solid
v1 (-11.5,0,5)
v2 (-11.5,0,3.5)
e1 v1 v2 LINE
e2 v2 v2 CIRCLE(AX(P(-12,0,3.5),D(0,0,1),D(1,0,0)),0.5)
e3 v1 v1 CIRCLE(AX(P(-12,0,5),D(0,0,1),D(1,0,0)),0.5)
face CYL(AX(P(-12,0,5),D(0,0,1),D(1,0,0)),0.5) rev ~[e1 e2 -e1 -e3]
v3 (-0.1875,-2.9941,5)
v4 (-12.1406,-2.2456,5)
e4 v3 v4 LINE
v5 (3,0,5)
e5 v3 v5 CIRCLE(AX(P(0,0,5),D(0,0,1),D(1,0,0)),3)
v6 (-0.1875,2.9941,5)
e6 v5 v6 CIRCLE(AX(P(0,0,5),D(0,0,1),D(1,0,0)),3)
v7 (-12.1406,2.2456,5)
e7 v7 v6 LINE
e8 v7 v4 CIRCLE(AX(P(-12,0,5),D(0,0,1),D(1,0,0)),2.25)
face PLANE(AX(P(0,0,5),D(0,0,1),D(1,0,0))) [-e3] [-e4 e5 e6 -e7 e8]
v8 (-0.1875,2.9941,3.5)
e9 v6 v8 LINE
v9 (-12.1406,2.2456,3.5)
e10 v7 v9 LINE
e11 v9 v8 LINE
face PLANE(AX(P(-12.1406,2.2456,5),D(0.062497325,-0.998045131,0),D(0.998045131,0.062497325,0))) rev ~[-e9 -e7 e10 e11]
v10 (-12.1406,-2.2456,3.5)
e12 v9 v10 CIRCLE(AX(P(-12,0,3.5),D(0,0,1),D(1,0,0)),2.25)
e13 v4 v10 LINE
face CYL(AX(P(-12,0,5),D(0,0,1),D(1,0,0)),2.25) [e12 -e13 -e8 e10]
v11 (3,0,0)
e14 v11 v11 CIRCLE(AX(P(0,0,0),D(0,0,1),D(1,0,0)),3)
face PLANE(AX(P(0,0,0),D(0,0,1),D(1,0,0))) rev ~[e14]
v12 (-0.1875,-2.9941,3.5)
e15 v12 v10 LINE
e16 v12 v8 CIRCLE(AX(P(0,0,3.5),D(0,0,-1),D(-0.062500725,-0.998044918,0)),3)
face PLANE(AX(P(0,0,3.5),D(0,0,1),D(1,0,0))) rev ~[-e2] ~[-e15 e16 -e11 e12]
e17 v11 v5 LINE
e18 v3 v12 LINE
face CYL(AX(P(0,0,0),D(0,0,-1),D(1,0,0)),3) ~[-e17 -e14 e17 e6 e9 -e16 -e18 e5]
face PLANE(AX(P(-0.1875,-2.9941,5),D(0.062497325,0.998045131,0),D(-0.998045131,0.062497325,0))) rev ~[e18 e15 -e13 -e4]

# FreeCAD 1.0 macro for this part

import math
import FreeCAD as App
import Part
import Sketcher

V = App.Vector
Q = App.Units.Quantity

doc = App.newDocument("Part")
body = doc.addObject("PartDesign::Body", "Body")

sketch1 = body.newObject("Sketcher::SketchObject", "Sketch")
sketch1.AttachmentSupport = (doc.getObject("XY_Plane"), [""])
sketch1.MapMode = "FlatFace"
sketch1.addGeometry(Part.Circle(V(0, 0, 0), V(0, 0, 1), 3), False)
sketch1.addConstraint([
    Sketcher.Constraint("Coincident", 0, 3, -1, 1),
    Sketcher.Constraint("Diameter", 0, Q("6 mm")),
])
pad1 = body.newObject("PartDesign::Pad", "Pad")
pad1.Profile = sketch1
pad1.Length = 5

sketch2 = body.newObject("Sketcher::SketchObject", "Sketch001")
sketch2.AttachmentSupport = (doc.getObject("XY_Plane"), [""])
sketch2.MapMode = "FlatFace"
sketch2.AttachmentOffset = App.Placement(V(0, 0, 5), App.Rotation())
sketch2.addGeometry([
    Part.LineSegment(V(-0.1875, 2.9941, 0), V(-12.1406, 2.2456, 0)),
    Part.ArcOfCircle(Part.Circle(V(-12, 0, 0), V(0, 0, 1), 2.25), math.radians(93.582688), math.radians(266.417312)),
    Part.LineSegment(V(-12.1406, -2.2456, 0), V(-0.1875, -2.9941, 0)),
    Part.ArcOfCircle(Part.Circle(V(0, 0, 0), V(0, 0, 1), 3), math.radians(93.583363), math.radians(266.416637)),
    Part.Circle(V(-12, 0, 0), V(0, 0, 1), 0.5),
], False)
sketch2.addConstraint([
    Sketcher.Constraint("Tangent", 0, 2, 1, 1),
    Sketcher.Constraint("Tangent", 1, 2, 2, 1),
    Sketcher.Constraint("Tangent", 2, 2, 3, 2),
    Sketcher.Constraint("Tangent", 3, 1, 0, 1),
    Sketcher.Constraint("Coincident", 3, 3, -1, 1),
    Sketcher.Constraint("Coincident", 4, 3, 1, 3),
    Sketcher.Constraint("PointOnObject", 1, 3, -1),
    Sketcher.Constraint("Diameter", 4, Q("1 mm")),
    Sketcher.Constraint("Radius", 1, Q("2.25 mm")),
    Sketcher.Constraint("DistanceX", 1, 3, -1, 1, Q("12 mm")),
    Sketcher.Constraint("Radius", 3, Q("3 mm")),
])
pad2 = body.newObject("PartDesign::Pad", "Pad001")
pad2.Profile = sketch2
pad2.Length = 1.5
pad2.Reversed = True

doc.recompute()
